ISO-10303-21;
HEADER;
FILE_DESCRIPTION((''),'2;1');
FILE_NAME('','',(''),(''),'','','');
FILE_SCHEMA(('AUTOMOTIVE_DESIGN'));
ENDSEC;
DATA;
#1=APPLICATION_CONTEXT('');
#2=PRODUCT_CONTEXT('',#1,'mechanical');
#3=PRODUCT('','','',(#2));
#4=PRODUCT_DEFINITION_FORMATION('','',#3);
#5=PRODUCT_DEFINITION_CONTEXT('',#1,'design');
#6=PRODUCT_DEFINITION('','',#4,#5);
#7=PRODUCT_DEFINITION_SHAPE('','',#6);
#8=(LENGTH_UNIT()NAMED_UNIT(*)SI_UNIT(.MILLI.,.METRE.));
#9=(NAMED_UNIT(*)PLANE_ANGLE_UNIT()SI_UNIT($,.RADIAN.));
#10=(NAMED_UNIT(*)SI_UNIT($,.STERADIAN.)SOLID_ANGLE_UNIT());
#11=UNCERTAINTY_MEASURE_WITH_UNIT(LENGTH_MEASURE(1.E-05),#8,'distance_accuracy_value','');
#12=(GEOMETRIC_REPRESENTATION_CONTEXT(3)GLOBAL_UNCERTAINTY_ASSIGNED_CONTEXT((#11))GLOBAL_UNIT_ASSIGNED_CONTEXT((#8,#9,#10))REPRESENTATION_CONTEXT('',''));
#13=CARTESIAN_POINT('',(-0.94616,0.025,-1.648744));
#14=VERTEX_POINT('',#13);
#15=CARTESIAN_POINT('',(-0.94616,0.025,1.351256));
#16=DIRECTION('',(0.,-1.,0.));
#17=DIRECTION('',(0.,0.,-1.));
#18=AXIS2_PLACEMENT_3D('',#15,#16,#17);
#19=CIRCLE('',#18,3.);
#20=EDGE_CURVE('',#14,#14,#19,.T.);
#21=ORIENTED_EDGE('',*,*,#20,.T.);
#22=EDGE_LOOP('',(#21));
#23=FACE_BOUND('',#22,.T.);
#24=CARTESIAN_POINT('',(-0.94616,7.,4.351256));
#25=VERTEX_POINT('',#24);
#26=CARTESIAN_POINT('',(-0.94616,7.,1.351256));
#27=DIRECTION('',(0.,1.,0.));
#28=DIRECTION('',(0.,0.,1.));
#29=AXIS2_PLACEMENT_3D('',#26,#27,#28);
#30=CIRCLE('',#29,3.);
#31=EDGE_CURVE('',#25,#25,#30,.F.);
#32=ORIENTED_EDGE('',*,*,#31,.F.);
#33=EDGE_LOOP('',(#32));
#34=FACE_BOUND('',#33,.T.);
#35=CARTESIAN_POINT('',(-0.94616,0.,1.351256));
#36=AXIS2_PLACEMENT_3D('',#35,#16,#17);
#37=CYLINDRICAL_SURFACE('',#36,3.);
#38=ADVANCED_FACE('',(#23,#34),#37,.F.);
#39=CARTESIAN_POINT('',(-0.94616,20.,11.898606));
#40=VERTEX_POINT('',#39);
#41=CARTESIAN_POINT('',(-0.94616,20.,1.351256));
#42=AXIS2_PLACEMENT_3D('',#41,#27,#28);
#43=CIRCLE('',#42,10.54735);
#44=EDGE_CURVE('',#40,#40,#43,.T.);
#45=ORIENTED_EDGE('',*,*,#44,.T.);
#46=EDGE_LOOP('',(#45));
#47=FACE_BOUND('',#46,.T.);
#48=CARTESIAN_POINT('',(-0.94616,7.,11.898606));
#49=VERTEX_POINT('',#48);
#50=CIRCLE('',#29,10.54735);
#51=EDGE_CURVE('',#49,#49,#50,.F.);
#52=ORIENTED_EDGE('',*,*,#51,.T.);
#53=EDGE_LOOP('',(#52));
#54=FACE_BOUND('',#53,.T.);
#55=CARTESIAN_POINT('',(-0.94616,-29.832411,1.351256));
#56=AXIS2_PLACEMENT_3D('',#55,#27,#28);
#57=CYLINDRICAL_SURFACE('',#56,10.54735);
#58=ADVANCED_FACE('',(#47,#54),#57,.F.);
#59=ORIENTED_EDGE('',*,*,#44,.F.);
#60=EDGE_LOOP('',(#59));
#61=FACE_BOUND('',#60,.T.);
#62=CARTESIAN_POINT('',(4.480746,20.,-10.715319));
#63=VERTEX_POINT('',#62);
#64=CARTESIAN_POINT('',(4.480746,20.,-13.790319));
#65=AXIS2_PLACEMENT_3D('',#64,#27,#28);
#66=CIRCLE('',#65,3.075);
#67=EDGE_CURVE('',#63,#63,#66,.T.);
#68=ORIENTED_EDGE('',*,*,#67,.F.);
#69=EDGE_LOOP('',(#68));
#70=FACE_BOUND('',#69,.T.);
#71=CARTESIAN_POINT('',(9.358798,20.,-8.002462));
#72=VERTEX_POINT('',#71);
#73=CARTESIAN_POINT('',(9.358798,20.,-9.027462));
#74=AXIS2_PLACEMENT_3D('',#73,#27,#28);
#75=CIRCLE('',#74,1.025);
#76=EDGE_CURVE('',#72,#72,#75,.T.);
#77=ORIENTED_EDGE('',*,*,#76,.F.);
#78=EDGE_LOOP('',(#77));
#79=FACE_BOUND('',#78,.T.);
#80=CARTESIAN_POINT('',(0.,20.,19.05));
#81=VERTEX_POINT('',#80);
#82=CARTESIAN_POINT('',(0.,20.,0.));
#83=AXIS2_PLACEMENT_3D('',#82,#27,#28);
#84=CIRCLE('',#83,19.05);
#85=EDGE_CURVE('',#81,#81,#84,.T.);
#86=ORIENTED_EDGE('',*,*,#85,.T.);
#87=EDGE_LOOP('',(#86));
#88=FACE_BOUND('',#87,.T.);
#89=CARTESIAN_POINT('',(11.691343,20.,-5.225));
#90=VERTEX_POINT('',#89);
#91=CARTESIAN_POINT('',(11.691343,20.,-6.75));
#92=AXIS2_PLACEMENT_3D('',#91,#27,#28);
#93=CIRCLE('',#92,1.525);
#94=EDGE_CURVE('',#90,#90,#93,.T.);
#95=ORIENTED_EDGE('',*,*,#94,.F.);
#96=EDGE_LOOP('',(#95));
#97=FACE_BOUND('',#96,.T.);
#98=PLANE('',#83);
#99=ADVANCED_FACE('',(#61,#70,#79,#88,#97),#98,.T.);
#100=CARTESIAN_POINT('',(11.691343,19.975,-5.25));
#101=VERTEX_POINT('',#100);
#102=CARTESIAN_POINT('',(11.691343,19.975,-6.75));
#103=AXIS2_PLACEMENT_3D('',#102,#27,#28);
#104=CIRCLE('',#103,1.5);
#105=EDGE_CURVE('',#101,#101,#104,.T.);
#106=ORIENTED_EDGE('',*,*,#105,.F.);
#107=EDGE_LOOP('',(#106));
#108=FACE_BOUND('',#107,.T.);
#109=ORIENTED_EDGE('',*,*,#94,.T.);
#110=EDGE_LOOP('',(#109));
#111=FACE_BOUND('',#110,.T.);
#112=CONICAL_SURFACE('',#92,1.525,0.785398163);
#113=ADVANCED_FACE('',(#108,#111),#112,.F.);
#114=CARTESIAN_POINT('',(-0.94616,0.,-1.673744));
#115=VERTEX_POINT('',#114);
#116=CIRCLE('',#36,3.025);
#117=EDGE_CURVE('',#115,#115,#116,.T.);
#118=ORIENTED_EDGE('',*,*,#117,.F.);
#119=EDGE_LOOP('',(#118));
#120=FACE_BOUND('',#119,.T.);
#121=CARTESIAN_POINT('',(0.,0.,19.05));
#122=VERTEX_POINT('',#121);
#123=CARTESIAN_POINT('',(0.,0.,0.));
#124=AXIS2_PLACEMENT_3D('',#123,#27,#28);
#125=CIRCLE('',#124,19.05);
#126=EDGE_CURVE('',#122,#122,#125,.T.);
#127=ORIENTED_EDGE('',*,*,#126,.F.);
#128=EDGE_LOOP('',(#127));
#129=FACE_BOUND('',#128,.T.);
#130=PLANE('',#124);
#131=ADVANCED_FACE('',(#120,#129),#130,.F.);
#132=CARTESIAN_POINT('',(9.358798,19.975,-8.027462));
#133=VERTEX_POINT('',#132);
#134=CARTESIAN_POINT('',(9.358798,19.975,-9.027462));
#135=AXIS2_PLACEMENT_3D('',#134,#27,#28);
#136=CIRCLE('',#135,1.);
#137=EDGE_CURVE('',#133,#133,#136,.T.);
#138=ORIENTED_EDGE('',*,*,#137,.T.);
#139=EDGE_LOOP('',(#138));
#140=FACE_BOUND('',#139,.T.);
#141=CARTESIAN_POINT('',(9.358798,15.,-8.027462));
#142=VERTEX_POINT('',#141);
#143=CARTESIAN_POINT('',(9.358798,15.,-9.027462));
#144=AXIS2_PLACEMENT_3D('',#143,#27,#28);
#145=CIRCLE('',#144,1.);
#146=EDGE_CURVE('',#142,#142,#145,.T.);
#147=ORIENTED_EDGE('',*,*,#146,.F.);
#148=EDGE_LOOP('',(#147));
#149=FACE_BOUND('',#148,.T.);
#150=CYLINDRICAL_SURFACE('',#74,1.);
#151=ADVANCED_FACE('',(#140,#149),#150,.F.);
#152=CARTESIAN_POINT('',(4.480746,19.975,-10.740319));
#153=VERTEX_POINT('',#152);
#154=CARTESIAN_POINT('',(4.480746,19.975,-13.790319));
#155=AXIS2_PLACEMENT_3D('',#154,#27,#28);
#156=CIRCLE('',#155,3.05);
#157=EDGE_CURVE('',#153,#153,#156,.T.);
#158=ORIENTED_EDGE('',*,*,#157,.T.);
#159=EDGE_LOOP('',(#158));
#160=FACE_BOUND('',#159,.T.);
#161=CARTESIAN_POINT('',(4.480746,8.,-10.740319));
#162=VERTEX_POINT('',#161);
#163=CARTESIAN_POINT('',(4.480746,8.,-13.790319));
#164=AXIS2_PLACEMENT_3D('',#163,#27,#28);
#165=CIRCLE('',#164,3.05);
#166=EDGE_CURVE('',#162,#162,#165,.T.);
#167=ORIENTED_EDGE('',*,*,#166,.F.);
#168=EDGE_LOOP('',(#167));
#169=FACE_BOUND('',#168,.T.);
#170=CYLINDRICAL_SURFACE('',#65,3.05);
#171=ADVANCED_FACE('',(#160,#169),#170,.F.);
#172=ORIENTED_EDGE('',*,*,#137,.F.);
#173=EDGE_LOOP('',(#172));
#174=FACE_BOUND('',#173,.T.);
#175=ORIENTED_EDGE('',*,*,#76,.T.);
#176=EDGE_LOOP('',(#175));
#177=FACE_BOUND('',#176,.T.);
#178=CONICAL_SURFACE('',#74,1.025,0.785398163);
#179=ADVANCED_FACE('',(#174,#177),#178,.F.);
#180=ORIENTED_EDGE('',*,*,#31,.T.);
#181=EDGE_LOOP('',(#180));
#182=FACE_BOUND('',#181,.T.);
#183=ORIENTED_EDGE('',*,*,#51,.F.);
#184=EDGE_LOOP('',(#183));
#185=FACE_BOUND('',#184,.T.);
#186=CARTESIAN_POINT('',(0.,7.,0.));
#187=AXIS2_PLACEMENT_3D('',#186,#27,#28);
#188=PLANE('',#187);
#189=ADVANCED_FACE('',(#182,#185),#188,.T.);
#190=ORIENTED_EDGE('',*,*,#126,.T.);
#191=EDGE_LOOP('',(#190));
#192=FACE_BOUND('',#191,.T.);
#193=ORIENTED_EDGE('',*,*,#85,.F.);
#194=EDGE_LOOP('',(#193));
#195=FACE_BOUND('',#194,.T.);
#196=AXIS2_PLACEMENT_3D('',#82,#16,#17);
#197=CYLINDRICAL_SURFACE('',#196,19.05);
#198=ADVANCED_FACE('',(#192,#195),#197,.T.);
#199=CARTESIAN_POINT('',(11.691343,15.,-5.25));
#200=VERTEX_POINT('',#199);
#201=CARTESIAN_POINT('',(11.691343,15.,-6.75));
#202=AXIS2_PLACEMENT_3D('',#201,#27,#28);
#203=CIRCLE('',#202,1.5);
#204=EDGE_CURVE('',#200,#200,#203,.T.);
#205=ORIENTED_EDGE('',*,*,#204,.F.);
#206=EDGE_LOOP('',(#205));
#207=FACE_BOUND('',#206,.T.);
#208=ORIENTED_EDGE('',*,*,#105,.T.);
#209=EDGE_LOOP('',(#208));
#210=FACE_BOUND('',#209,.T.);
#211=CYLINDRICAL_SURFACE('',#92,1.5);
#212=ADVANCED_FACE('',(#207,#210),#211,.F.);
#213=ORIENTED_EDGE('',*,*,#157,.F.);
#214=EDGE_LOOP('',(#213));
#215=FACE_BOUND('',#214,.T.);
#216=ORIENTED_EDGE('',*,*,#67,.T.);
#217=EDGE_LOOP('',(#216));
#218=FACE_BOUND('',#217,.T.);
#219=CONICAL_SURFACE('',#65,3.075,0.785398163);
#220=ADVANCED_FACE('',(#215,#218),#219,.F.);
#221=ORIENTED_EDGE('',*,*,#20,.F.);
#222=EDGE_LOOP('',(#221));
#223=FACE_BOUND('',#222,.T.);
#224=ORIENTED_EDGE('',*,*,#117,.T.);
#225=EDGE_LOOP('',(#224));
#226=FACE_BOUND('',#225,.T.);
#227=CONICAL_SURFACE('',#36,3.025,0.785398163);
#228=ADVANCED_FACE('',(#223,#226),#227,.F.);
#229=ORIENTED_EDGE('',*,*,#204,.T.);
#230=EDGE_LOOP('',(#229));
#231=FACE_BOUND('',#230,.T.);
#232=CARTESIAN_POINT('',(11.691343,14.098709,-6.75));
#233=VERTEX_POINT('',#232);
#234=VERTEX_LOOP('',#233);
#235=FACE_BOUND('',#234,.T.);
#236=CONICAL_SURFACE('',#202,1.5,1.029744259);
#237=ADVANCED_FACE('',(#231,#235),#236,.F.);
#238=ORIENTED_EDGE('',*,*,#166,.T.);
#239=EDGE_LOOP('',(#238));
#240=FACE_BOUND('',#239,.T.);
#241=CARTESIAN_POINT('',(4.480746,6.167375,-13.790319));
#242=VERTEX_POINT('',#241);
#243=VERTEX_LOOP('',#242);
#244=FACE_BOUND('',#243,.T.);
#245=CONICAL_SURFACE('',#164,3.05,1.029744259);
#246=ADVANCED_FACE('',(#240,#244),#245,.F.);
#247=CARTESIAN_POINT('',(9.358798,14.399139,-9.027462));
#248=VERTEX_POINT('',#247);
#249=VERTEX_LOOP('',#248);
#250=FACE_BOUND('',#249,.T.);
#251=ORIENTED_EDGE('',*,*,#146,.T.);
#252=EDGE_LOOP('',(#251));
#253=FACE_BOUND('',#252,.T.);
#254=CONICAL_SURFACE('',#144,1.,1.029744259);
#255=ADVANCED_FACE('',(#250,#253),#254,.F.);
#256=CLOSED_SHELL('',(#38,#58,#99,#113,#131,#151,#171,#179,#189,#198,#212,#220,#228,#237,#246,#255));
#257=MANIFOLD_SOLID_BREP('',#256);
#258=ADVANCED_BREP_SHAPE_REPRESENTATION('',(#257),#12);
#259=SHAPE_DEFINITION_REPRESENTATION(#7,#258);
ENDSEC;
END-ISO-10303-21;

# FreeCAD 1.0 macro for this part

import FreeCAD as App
import Part
import Sketcher

V = App.Vector
Q = App.Units.Quantity

doc = App.newDocument("Part")
body = doc.addObject("PartDesign::Body", "Body")

sketch1 = body.newObject("Sketcher::SketchObject", "Sketch")
sketch1.AttachmentSupport = (doc.getObject("XZ_Plane"), [""])
sketch1.MapMode = "FlatFace"
sketch1.addGeometry(Part.Circle(V(0, 0, 0), V(0, 0, 1), 19), False)
sketch1.addConstraint([
    Sketcher.Constraint("Coincident", 0, 3, -1, 1),
    Sketcher.Constraint("Diameter", 0, Q("38.1 mm")),
])
pad1 = body.newObject("PartDesign::Pad", "Pad")
pad1.Profile = sketch1
pad1.Length = 20
pad1.Reversed = True

sketch2 = body.newObject("Sketcher::SketchObject", "Sketch001")
sketch2.AttachmentSupport = (doc.getObject("XZ_Plane"), [""])
sketch2.MapMode = "FlatFace"
sketch2.AttachmentOffset = App.Placement(V(0, 0, -20), App.Rotation())
sketch2.addGeometry(Part.Circle(V(4.5, -13.8, 0), V(0, 0, 1), 3), False)
sketch2.addConstraint([
    Sketcher.Constraint("Diameter", 0, Q("6.1 mm")),
    Sketcher.Constraint("DistanceY", 0, 3, -1, 1, Q("13.790319 mm")),
    Sketcher.Constraint("DistanceX", -1, 1, 0, 3, Q("4.480746 mm")),
])
doc.recompute()
hole = body.newObject("PartDesign::Hole", "Hole")
hole.Profile = sketch2
hole.ThreadType = "None"
hole.Diameter = 6.1
hole.DepthType = "Dimension"
hole.Depth = 12
hole.DrillPoint = "Angled"
hole.DrillPointAngle = 118
hole.HoleCutType = "Countersink"
hole.HoleCutDiameter = 6.15
hole.HoleCutCountersinkAngle = 90
hole.Reversed = True

sketch3 = body.newObject("Sketcher::SketchObject", "Sketch002")
sketch3.AttachmentSupport = (doc.getObject("XZ_Plane"), [""])
sketch3.MapMode = "FlatFace"
sketch3.AttachmentOffset = App.Placement(V(0, 0, -20), App.Rotation())
sketch3.addGeometry(Part.Circle(V(9.4, -9, 0), V(0, 0, 1), 1), False)
sketch3.addConstraint([
    Sketcher.Constraint("Diameter", 0, Q("2 mm")),
    Sketcher.Constraint("DistanceX", -1, 1, 0, 3, Q("9.358798 mm")),
    Sketcher.Constraint("DistanceY", 0, 3, -1, 1, Q("9.027462 mm")),
])
doc.recompute()
hole2 = body.newObject("PartDesign::Hole", "Hole001")
hole2.Profile = sketch3
hole2.ThreadType = "None"
hole2.Diameter = 2
hole2.DepthType = "Dimension"
hole2.Depth = 5
hole2.DrillPoint = "Angled"
hole2.DrillPointAngle = 118
hole2.HoleCutType = "Countersink"
hole2.HoleCutDiameter = 2.05
hole2.HoleCutCountersinkAngle = 90
hole2.Reversed = True

sketch4 = body.newObject("Sketcher::SketchObject", "Sketch003")
sketch4.AttachmentSupport = (doc.getObject("XZ_Plane"), [""])
sketch4.MapMode = "FlatFace"
sketch4.AttachmentOffset = App.Placement(V(0, 0, -20), App.Rotation())
sketch4.addGeometry(Part.Circle(V(11.7, -6.8, 0), V(0, 0, 1), 1.5), False)
sketch4.addConstraint([
    Sketcher.Constraint("Diameter", 0, Q("3 mm")),
    Sketcher.Constraint("DistanceY", 0, 3, -1, 1, Q("6.75 mm")),
    Sketcher.Constraint("DistanceX", -1, 1, 0, 3, Q("11.691343 mm")),
])
doc.recompute()
hole3 = body.newObject("PartDesign::Hole", "Hole002")
hole3.Profile = sketch4
hole3.ThreadType = "None"
hole3.Diameter = 3
hole3.DepthType = "Dimension"
hole3.Depth = 5
hole3.DrillPoint = "Angled"
hole3.DrillPointAngle = 118
hole3.HoleCutType = "Countersink"
hole3.HoleCutDiameter = 3.05
hole3.HoleCutCountersinkAngle = 90
hole3.Reversed = True

sketch5 = body.newObject("Sketcher::SketchObject", "Sketch004")
sketch5.AttachmentSupport = (doc.getObject("XZ_Plane"), [""])
sketch5.MapMode = "FlatFace"
sketch5.addGeometry(Part.Circle(V(-0.9, 1.4, 0), V(0, 0, 1), 3), False)
sketch5.addConstraint([
    Sketcher.Constraint("Diameter", 0, Q("6 mm")),
    Sketcher.Constraint("DistanceX", 0, 3, -1, 1, Q("0.94616 mm")),
    Sketcher.Constraint("DistanceY", -1, 1, 0, 3, Q("1.351256 mm")),
])
doc.recompute()
hole4 = body.newObject("PartDesign::Hole", "Hole003")
hole4.Profile = sketch5
hole4.ThreadType = "None"
hole4.Diameter = 6
hole4.DepthType = "Dimension"
hole4.Depth = 35.197418
hole4.DrillPoint = "Angled"
hole4.DrillPointAngle = 118
hole4.HoleCutType = "Countersink"
hole4.HoleCutDiameter = 6.05
hole4.HoleCutCountersinkAngle = 90

sketch6 = body.newObject("Sketcher::SketchObject", "Sketch005")
sketch6.AttachmentSupport = (doc.getObject("XZ_Plane"), [""])
sketch6.MapMode = "FlatFace"
sketch6.AttachmentOffset = App.Placement(V(0, 0, -20), App.Rotation())
sketch6.addGeometry(Part.Circle(V(-1, 1, 0), V(0, 0, 1), 11), False)
sketch6.addConstraint([
    Sketcher.Constraint("Diameter", 0, Q("21.0947 mm")),
    Sketcher.Constraint("DistanceX", 0, 3, -1, 1, Q("0.94616 mm")),
    Sketcher.Constraint("DistanceY", -1, 1, 0, 3, Q("1.351256 mm")),
])
pocket1 = body.newObject("PartDesign::Pocket", "Pocket")
pocket1.Profile = sketch6
pocket1.Length = 13
pocket1.Reversed = True

doc.recompute()
